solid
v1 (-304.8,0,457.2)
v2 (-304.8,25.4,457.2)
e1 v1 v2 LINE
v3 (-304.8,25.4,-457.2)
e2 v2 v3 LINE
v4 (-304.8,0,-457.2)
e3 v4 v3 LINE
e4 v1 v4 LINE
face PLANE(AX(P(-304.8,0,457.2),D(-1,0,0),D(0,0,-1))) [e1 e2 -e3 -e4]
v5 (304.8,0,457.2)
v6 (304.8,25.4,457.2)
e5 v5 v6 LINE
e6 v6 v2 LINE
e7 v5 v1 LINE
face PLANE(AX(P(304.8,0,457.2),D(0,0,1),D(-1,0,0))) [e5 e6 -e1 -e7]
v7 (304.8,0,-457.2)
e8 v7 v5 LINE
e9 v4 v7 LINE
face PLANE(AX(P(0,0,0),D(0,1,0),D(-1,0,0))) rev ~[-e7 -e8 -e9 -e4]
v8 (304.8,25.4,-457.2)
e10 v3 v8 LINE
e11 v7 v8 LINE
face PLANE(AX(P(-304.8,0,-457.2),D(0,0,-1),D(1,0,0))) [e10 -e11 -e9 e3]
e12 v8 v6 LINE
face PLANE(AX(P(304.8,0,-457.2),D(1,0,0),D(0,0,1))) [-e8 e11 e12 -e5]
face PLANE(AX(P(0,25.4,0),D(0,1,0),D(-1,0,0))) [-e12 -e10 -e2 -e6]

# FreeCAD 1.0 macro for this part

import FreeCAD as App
import Part
import Sketcher
from FreeCAD import Vector
Q = App.Units.Quantity


def add_polygon(sketch, points):
    """Adds a closed chain of lines whose ends are joined by coincident constraints."""
    first, n = sketch.GeometryCount, len(points)
    for a, b in zip(points, points[1:] + points[:1]):
        sketch.addGeometry(Part.LineSegment(App.Vector(*a, 0), App.Vector(*b, 0)), False)
    for i in range(n):
        sketch.addConstraint(Sketcher.Constraint("Coincident", first + i, 2, first + (i + 1) % n, 1))

doc = App.newDocument("Part")
params = doc.addObject("Spreadsheet::Sheet", "Params")
for row, (alias, value) in enumerate([
    ("sketch1_width", "24 in"),
    ("sketch1_height", "36 in"),
    ("pad1_length", "1 in"),
], start=1):
    params.set(f"A{row}", alias)
    params.set(f"B{row}", "=" + value)
    params.setAlias(f"B{row}", alias)

body = doc.addObject("PartDesign::Body", "Body")

sketch1 = body.newObject("Sketcher::SketchObject", "Sketch")
sketch1.AttachmentSupport = (doc.getObject("XZ_Plane"), [""])
sketch1.MapMode = "FlatFace"
add_polygon(sketch1, [(-305, 457), (305, 457), (305, -457), (-305, -457)])
sketch1.addConstraint([
    Sketcher.Constraint("Horizontal", 0),
    Sketcher.Constraint("Vertical", 1),
    Sketcher.Constraint("Horizontal", 2),
    Sketcher.Constraint("Vertical", 3),
    Sketcher.Constraint("Symmetric", 0, 2, 2, 2, -1, 1),
    Sketcher.Constraint("DistanceX", 0, 1, 0, 2, Q("24 in")),
    Sketcher.Constraint("DistanceY", 1, 2, 1, 1, Q("36 in")),
])
sketch1.setExpression("Constraints[9]", "Params.sketch1_width")
sketch1.setExpression("Constraints[10]", "Params.sketch1_height")
pad1 = body.newObject("PartDesign::Pad", "Pad")
pad1.Profile = sketch1
pad1.setExpression("Length", "Params.pad1_length")
pad1.Reversed = True

doc.recompute()
